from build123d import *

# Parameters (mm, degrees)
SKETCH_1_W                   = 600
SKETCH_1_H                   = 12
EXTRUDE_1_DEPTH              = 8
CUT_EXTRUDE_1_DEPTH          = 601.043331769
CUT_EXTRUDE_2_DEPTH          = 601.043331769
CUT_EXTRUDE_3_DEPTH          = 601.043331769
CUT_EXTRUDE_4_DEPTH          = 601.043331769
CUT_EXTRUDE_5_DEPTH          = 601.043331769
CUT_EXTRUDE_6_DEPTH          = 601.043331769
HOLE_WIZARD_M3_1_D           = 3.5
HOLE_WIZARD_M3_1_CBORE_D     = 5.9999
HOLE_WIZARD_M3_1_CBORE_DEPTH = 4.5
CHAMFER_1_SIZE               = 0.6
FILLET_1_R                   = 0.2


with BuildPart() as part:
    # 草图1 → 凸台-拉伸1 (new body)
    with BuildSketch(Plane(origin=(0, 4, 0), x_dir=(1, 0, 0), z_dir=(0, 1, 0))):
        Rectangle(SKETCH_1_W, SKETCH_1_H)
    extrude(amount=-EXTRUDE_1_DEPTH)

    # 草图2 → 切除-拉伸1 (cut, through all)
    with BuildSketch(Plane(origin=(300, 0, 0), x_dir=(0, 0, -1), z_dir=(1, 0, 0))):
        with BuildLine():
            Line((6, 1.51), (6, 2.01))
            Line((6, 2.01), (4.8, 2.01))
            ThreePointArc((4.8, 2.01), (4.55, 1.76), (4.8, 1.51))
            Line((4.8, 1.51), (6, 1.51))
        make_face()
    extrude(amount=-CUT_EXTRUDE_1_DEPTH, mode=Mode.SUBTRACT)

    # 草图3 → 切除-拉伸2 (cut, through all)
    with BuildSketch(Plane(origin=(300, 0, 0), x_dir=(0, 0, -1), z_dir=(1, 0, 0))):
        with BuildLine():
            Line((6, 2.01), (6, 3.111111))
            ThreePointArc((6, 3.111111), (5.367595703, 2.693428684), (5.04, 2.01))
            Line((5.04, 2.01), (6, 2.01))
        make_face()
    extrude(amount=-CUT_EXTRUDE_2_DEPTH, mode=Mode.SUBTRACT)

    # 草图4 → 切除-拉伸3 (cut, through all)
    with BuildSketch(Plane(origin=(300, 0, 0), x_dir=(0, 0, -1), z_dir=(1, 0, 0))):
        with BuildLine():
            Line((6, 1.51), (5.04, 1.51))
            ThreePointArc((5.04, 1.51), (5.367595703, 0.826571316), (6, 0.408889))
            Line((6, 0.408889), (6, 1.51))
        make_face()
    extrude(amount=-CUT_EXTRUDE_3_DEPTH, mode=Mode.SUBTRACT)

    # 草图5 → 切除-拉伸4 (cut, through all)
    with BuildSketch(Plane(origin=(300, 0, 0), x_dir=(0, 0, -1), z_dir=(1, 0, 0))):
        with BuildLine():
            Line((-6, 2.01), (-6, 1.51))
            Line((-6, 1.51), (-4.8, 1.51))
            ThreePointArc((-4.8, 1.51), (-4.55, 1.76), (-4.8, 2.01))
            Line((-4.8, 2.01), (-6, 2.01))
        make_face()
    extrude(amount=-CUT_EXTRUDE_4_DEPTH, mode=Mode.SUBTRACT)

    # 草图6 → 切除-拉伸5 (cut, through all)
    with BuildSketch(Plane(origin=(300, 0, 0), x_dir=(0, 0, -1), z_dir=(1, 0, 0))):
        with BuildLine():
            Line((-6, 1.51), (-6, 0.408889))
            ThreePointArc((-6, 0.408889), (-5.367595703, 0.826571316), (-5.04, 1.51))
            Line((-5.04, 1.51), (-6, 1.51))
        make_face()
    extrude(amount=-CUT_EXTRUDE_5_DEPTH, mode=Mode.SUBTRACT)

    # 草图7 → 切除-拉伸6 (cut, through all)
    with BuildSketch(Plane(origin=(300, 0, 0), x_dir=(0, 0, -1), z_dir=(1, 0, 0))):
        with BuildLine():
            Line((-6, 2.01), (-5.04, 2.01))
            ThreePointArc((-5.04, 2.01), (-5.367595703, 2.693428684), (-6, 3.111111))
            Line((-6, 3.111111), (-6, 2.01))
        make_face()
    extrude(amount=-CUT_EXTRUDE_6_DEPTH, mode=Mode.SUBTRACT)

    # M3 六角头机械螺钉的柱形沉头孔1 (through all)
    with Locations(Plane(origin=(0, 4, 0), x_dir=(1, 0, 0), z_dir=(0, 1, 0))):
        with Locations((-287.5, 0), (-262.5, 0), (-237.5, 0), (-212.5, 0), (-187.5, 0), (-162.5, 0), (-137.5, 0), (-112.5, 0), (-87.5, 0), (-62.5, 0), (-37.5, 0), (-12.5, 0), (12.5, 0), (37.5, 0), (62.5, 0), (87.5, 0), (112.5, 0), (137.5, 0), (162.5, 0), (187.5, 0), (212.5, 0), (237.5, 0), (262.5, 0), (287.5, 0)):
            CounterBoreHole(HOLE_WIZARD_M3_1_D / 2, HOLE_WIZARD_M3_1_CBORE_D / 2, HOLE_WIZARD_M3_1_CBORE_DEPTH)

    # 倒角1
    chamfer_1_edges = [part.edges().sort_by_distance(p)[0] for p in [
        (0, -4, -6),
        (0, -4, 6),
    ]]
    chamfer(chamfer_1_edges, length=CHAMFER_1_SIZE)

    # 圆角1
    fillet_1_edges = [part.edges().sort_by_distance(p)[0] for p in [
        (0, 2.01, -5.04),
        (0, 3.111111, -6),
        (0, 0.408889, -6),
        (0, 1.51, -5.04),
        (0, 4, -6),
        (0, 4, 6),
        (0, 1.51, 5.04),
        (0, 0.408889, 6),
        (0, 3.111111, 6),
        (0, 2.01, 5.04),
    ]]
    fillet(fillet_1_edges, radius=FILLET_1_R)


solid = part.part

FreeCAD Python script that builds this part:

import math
import FreeCAD as App
import Part
import Sketcher
from FreeCAD import Vector


def edges_at(feature, points):
    """Names of the edges that pass closest to the given points."""
    edges = feature.Shape.Edges
    near = lambda p: min(range(len(edges)), key=lambda i: edges[i].distToShape(Part.Vertex(*p))[0])
    return sorted({f"Edge{near(p) + 1}" for p in points})

doc = App.newDocument("Part")
params = doc.addObject("Spreadsheet::Sheet", "Params")
for row, (alias, value) in enumerate([
    ("sketch1_width", "600 mm"),
    ("sketch1_height", "12 mm"),
    ("pad1_length", "8 mm"),
    ("sketch2_radius", "0.25 mm"),
    ("sketch2_height", "1.2 mm"),
    ("sketch3_height", "0.96 mm"),
    ("sketch4_height", "0.96 mm"),
    ("sketch5_radius", "0.25 mm"),
    ("sketch5_height", "1.2 mm"),
    ("sketch6_height", "0.96 mm"),
    ("sketch7_height", "0.96 mm"),
    ("sketch8_diameter", "3.5 mm"),
    ("hole_diameter", "3.5 mm"),
    ("hole_cbore_diameter", "5.9999 mm"),
    ("hole_cbore_depth", "4.5 mm"),
    ("chamfer_size", "0.6 mm"),
    ("fillet_radius", "0.2 mm"),
], start=1):
    params.set(f"A{row}", alias)
    params.set(f"B{row}", "=" + value)
    params.setAlias(f"B{row}", alias)

body = doc.addObject("PartDesign::Body", "Body")

# Sketch on XZ plane
sketch1 = body.newObject("Sketcher::SketchObject", "Sketch")
sketch1.AttachmentSupport = (doc.getObject("XZ_Plane"), [""])
sketch1.MapMode = "FlatFace"
sketch1.AttachmentOffset = App.Placement(Vector(0, 0, -4), App.Rotation())
sketch1.addGeometry([
    Part.LineSegment(Vector(-300, -6, 0), Vector(-300, 6, 0)),
    Part.LineSegment(Vector(-300, 6, 0), Vector(300, 6, 0)),
    Part.LineSegment(Vector(300, 6, 0), Vector(300, -6, 0)),
    Part.LineSegment(Vector(300, -6, 0), Vector(-300, -6, 0)),
], False)
sketch1.addConstraint([
    Sketcher.Constraint("Coincident", 0, 2, 1, 1),
    Sketcher.Constraint("Coincident", 1, 2, 2, 1),
    Sketcher.Constraint("Coincident", 2, 2, 3, 1),
    Sketcher.Constraint("Coincident", 3, 2, 0, 1),
    Sketcher.Constraint("Vertical", 0),
    Sketcher.Constraint("Horizontal", 1),
    Sketcher.Constraint("Vertical", 2),
    Sketcher.Constraint("Horizontal", 3),
    Sketcher.Constraint("Symmetric", 0, 2, 2, 2, -1, 1),
    Sketcher.Constraint("DistanceX", 1, 1, 1, 2, 600.0),
    Sketcher.Constraint("DistanceY", 0, 1, 0, 2, 12.0),
])
sketch1.setExpression("Constraints[9]", "Params.sketch1_width")
sketch1.setExpression("Constraints[10]", "Params.sketch1_height")
pad1 = body.newObject("PartDesign::Pad", "Pad")
pad1.Profile = sketch1
pad1.setExpression("Length", "Params.pad1_length")

# Sketch on YZ plane
sketch2 = body.newObject("Sketcher::SketchObject", "Sketch001")
sketch2.AttachmentSupport = (doc.getObject("YZ_Plane"), [""])
sketch2.MapMode = "FlatFace"
sketch2.AttachmentOffset = App.Placement(Vector(0, 0, 300), App.Rotation())
sketch2.addGeometry([
    Part.LineSegment(Vector(1.51, -6, 0), Vector(2.01, -6, 0)),
    Part.LineSegment(Vector(2.01, -6, 0), Vector(2.01, -4.8, 0)),
    Part.ArcOfCircle(Part.Circle(Vector(1.76, -4.8, 0), Vector(0, 0, 1), 0.25), math.radians(0), math.radians(180)),
    Part.LineSegment(Vector(1.51, -4.8, 0), Vector(1.51, -6, 0)),
], False)
sketch2.addConstraint([
    Sketcher.Constraint("Coincident", 0, 2, 1, 1),
    Sketcher.Constraint("Tangent", 1, 2, 2, 1),
    Sketcher.Constraint("Tangent", 2, 2, 3, 1),
    Sketcher.Constraint("Coincident", 3, 2, 0, 1),
    Sketcher.Constraint("Horizontal", 0),
    Sketcher.Constraint("Vertical", 1),
    Sketcher.Constraint("Vertical", 3),
    Sketcher.Constraint("Radius", 2, 0.25),
    Sketcher.Constraint("DistanceY", 1, 1, 1, 2, 1.2),
    Sketcher.Constraint("DistanceY", 0, 2, -1, 1, 6.0),
    Sketcher.Constraint("DistanceX", -1, 1, 2, 3, 1.76),
])
sketch2.setExpression("Constraints[7]", "Params.sketch2_radius")
sketch2.setExpression("Constraints[8]", "Params.sketch2_height")
pocket1 = body.newObject("PartDesign::Pocket", "Pocket")
pocket1.Profile = sketch2
pocket1.Type = "ThroughAll"

# Sketch on YZ plane
sketch3 = body.newObject("Sketcher::SketchObject", "Sketch002")
sketch3.AttachmentSupport = (doc.getObject("YZ_Plane"), [""])
sketch3.MapMode = "FlatFace"
sketch3.AttachmentOffset = App.Placement(Vector(0, 0, 300), App.Rotation())
sketch3.addGeometry([
    Part.LineSegment(Vector(2.01, -6, 0), Vector(3.111111, -6, 0)),
    Part.ArcOfCircle(Part.Circle(Vector(1.76, -6.43823, 0), Vector(0, 0, 1), 1.420404), math.radians(17.970348), math.radians(79.862775)),
    Part.LineSegment(Vector(2.01, -5.04, 0), Vector(2.01, -6, 0)),
], False)
sketch3.addConstraint([
    Sketcher.Constraint("Coincident", 0, 2, 1, 1),
    Sketcher.Constraint("Coincident", 1, 2, 2, 1),
    Sketcher.Constraint("Coincident", 2, 2, 0, 1),
    Sketcher.Constraint("Horizontal", 0),
    Sketcher.Constraint("Vertical", 2),
    Sketcher.Constraint("DistanceY", 0, 2, -1, 1, 6.0),
    Sketcher.Constraint("DistanceY", 2, 2, 2, 1, 0.96),
    Sketcher.Constraint("DistanceX", -1, 1, 1, 3, 1.76),
    Sketcher.Constraint("DistanceX", -1, 1, 1, 2, 2.01),
    Sketcher.Constraint("Radius", 1, 1.420404),
])
sketch3.setExpression("Constraints[6]", "Params.sketch3_height")
pocket2 = body.newObject("PartDesign::Pocket", "Pocket001")
pocket2.Profile = sketch3
pocket2.Type = "ThroughAll"

# Sketch on YZ plane
sketch4 = body.newObject("Sketcher::SketchObject", "Sketch003")
sketch4.AttachmentSupport = (doc.getObject("YZ_Plane"), [""])
sketch4.MapMode = "FlatFace"
sketch4.AttachmentOffset = App.Placement(Vector(0, 0, 300), App.Rotation())
sketch4.addGeometry([
    Part.LineSegment(Vector(1.51, -6, 0), Vector(1.51, -5.04, 0)),
    Part.ArcOfCircle(Part.Circle(Vector(1.76, -6.43823, 0), Vector(0, 0, 1), 1.420404), math.radians(100.137225), math.radians(162.029652)),
    Part.LineSegment(Vector(0.408889, -6, 0), Vector(1.51, -6, 0)),
], False)
sketch4.addConstraint([
    Sketcher.Constraint("Coincident", 0, 2, 1, 1),
    Sketcher.Constraint("Coincident", 1, 2, 2, 1),
    Sketcher.Constraint("Coincident", 2, 2, 0, 1),
    Sketcher.Constraint("Vertical", 0),
    Sketcher.Constraint("Horizontal", 2),
    Sketcher.Constraint("DistanceY", 1, 2, -1, 1, 6.0),
    Sketcher.Constraint("DistanceY", 0, 1, 0, 2, 0.96),
    Sketcher.Constraint("DistanceX", -1, 1, 1, 3, 1.76),
    Sketcher.Constraint("DistanceX", -1, 1, 0, 2, 1.51),
    Sketcher.Constraint("Radius", 1, 1.420404),
])
sketch4.setExpression("Constraints[6]", "Params.sketch4_height")
pocket3 = body.newObject("PartDesign::Pocket", "Pocket002")
pocket3.Profile = sketch4
pocket3.Type = "ThroughAll"

# Sketch on YZ plane
sketch5 = body.newObject("Sketcher::SketchObject", "Sketch004")
sketch5.AttachmentSupport = (doc.getObject("YZ_Plane"), [""])
sketch5.MapMode = "FlatFace"
sketch5.AttachmentOffset = App.Placement(Vector(0, 0, 300), App.Rotation())
sketch5.addGeometry([
    Part.LineSegment(Vector(2.01, 6, 0), Vector(1.51, 6, 0)),
    Part.LineSegment(Vector(1.51, 6, 0), Vector(1.51, 4.8, 0)),
    Part.ArcOfCircle(Part.Circle(Vector(1.76, 4.8, 0), Vector(0, 0, 1), 0.25), math.radians(180), math.radians(360)),
    Part.LineSegment(Vector(2.01, 4.8, 0), Vector(2.01, 6, 0)),
], False)
sketch5.addConstraint([
    Sketcher.Constraint("Coincident", 0, 2, 1, 1),
    Sketcher.Constraint("Tangent", 1, 2, 2, 1),
    Sketcher.Constraint("Tangent", 2, 2, 3, 1),
    Sketcher.Constraint("Coincident", 3, 2, 0, 1),
    Sketcher.Constraint("Horizontal", 0),
    Sketcher.Constraint("Vertical", 1),
    Sketcher.Constraint("Vertical", 3),
    Sketcher.Constraint("Radius", 2, 0.25),
    Sketcher.Constraint("DistanceY", 1, 2, 1, 1, 1.2),
    Sketcher.Constraint("DistanceY", -1, 1, 0, 2, 6.0),
    Sketcher.Constraint("DistanceX", -1, 1, 2, 3, 1.76),
])
sketch5.setExpression("Constraints[7]", "Params.sketch5_radius")
sketch5.setExpression("Constraints[8]", "Params.sketch5_height")
pocket4 = body.newObject("PartDesign::Pocket", "Pocket003")
pocket4.Profile = sketch5
pocket4.Type = "ThroughAll"

# Sketch on YZ plane
sketch6 = body.newObject("Sketcher::SketchObject", "Sketch005")
sketch6.AttachmentSupport = (doc.getObject("YZ_Plane"), [""])
sketch6.MapMode = "FlatFace"
sketch6.AttachmentOffset = App.Placement(Vector(0, 0, 300), App.Rotation())
sketch6.addGeometry([
    Part.LineSegment(Vector(1.51, 6, 0), Vector(0.408889, 6, 0)),
    Part.ArcOfCircle(Part.Circle(Vector(1.76, 6.43823, 0), Vector(0, 0, 1), 1.420404), math.radians(-162.029652), math.radians(-100.137225)),
    Part.LineSegment(Vector(1.51, 5.04, 0), Vector(1.51, 6, 0)),
], False)
sketch6.addConstraint([
    Sketcher.Constraint("Coincident", 0, 2, 1, 1),
    Sketcher.Constraint("Coincident", 1, 2, 2, 1),
    Sketcher.Constraint("Coincident", 2, 2, 0, 1),
    Sketcher.Constraint("Horizontal", 0),
    Sketcher.Constraint("Vertical", 2),
    Sketcher.Constraint("DistanceY", -1, 1, 0, 2, 6.0),
    Sketcher.Constraint("DistanceY", 2, 1, 2, 2, 0.96),
    Sketcher.Constraint("DistanceX", -1, 1, 1, 3, 1.76),
    Sketcher.Constraint("DistanceX", -1, 1, 1, 2, 1.51),
    Sketcher.Constraint("Radius", 1, 1.420404),
])
sketch6.setExpression("Constraints[6]", "Params.sketch6_height")
pocket5 = body.newObject("PartDesign::Pocket", "Pocket004")
pocket5.Profile = sketch6
pocket5.Type = "ThroughAll"

# Sketch on YZ plane
sketch7 = body.newObject("Sketcher::SketchObject", "Sketch006")
sketch7.AttachmentSupport = (doc.getObject("YZ_Plane"), [""])
sketch7.MapMode = "FlatFace"
sketch7.AttachmentOffset = App.Placement(Vector(0, 0, 300), App.Rotation())
sketch7.addGeometry([
    Part.LineSegment(Vector(2.01, 6, 0), Vector(2.01, 5.04, 0)),
    Part.ArcOfCircle(Part.Circle(Vector(1.76, 6.43823, 0), Vector(0, 0, 1), 1.420404), math.radians(-79.862775), math.radians(-17.970348)),
    Part.LineSegment(Vector(3.111111, 6, 0), Vector(2.01, 6, 0)),
], False)
sketch7.addConstraint([
    Sketcher.Constraint("Coincident", 0, 2, 1, 1),
    Sketcher.Constraint("Coincident", 1, 2, 2, 1),
    Sketcher.Constraint("Coincident", 2, 2, 0, 1),
    Sketcher.Constraint("Vertical", 0),
    Sketcher.Constraint("Horizontal", 2),
    Sketcher.Constraint("DistanceY", -1, 1, 1, 2, 6.0),
    Sketcher.Constraint("DistanceY", 0, 2, 0, 1, 0.96),
    Sketcher.Constraint("DistanceX", -1, 1, 1, 3, 1.76),
    Sketcher.Constraint("DistanceX", -1, 1, 0, 2, 2.01),
    Sketcher.Constraint("Radius", 1, 1.420404),
])
sketch7.setExpression("Constraints[6]", "Params.sketch7_height")
pocket6 = body.newObject("PartDesign::Pocket", "Pocket005")
pocket6.Profile = sketch7
pocket6.Type = "ThroughAll"

# Sketch on XZ plane
sketch8 = body.newObject("Sketcher::SketchObject", "Sketch007")
sketch8.AttachmentSupport = (doc.getObject("XZ_Plane"), [""])
sketch8.MapMode = "FlatFace"
sketch8.AttachmentOffset = App.Placement(Vector(0, 0, -4), App.Rotation())
sketch8.addGeometry([
    Part.Circle(Vector(-287.5, 0, 0), Vector(0, 0, 1), 1.75),  # 0
    Part.Circle(Vector(-262.5, 0, 0), Vector(0, 0, 1), 1.75),  # 1
    Part.Circle(Vector(-237.5, 0, 0), Vector(0, 0, 1), 1.75),  # 2
    Part.Circle(Vector(-212.5, 0, 0), Vector(0, 0, 1), 1.75),  # 3
    Part.Circle(Vector(-187.5, 0, 0), Vector(0, 0, 1), 1.75),  # 4
    Part.Circle(Vector(-162.5, 0, 0), Vector(0, 0, 1), 1.75),  # 5
    Part.Circle(Vector(-137.5, 0, 0), Vector(0, 0, 1), 1.75),  # 6
    Part.Circle(Vector(-112.5, 0, 0), Vector(0, 0, 1), 1.75),  # 7
    Part.Circle(Vector(-87.5, 0, 0), Vector(0, 0, 1), 1.75),  # 8
    Part.Circle(Vector(-62.5, 0, 0), Vector(0, 0, 1), 1.75),  # 9
    Part.Circle(Vector(-37.5, 0, 0), Vector(0, 0, 1), 1.75),  # 10
    Part.Circle(Vector(-12.5, 0, 0), Vector(0, 0, 1), 1.75),  # 11
    Part.Circle(Vector(12.5, 0, 0), Vector(0, 0, 1), 1.75),  # 12
    Part.Circle(Vector(37.5, 0, 0), Vector(0, 0, 1), 1.75),  # 13
    Part.Circle(Vector(62.5, 0, 0), Vector(0, 0, 1), 1.75),  # 14
    Part.Circle(Vector(87.5, 0, 0), Vector(0, 0, 1), 1.75),  # 15
    Part.Circle(Vector(112.5, 0, 0), Vector(0, 0, 1), 1.75),  # 16
    Part.Circle(Vector(137.5, 0, 0), Vector(0, 0, 1), 1.75),  # 17
    Part.Circle(Vector(162.5, 0, 0), Vector(0, 0, 1), 1.75),  # 18
    Part.Circle(Vector(187.5, 0, 0), Vector(0, 0, 1), 1.75),  # 19
    Part.Circle(Vector(212.5, 0, 0), Vector(0, 0, 1), 1.75),  # 20
    Part.Circle(Vector(237.5, 0, 0), Vector(0, 0, 1), 1.75),  # 21
    Part.Circle(Vector(262.5, 0, 0), Vector(0, 0, 1), 1.75),  # 22
    Part.Circle(Vector(287.5, 0, 0), Vector(0, 0, 1), 1.75),  # 23
], False)
sketch8.addConstraint([
    Sketcher.Constraint("Equal", 0, 1),
    Sketcher.Constraint("Equal", 1, 2),
    Sketcher.Constraint("Equal", 2, 3),
    Sketcher.Constraint("Equal", 3, 4),
    Sketcher.Constraint("Equal", 4, 5),
    Sketcher.Constraint("Equal", 5, 6),
    Sketcher.Constraint("Equal", 6, 7),
    Sketcher.Constraint("Equal", 7, 8),
    Sketcher.Constraint("Equal", 8, 9),
    Sketcher.Constraint("Equal", 9, 10),
    Sketcher.Constraint("Equal", 10, 11),
    Sketcher.Constraint("Equal", 11, 12),
    Sketcher.Constraint("Equal", 12, 13),
    Sketcher.Constraint("Equal", 13, 14),
    Sketcher.Constraint("Equal", 14, 15),
    Sketcher.Constraint("Equal", 15, 16),
    Sketcher.Constraint("Equal", 16, 17),
    Sketcher.Constraint("Equal", 17, 18),
    Sketcher.Constraint("Equal", 18, 19),
    Sketcher.Constraint("Equal", 19, 20),
    Sketcher.Constraint("Equal", 20, 21),
    Sketcher.Constraint("Equal", 21, 22),
    Sketcher.Constraint("Equal", 22, 23),
    Sketcher.Constraint("Symmetric", 11, 3, 12, 3, -1, 1),
    Sketcher.Constraint("Symmetric", 10, 3, 13, 3, -1, 1),
    Sketcher.Constraint("Symmetric", 9, 3, 14, 3, -1, 1),
    Sketcher.Constraint("Symmetric", 8, 3, 15, 3, -1, 1),
    Sketcher.Constraint("Symmetric", 7, 3, 16, 3, -1, 1),
    Sketcher.Constraint("Symmetric", 6, 3, 17, 3, -1, 1),
    Sketcher.Constraint("Symmetric", 5, 3, 18, 3, -1, 1),
    Sketcher.Constraint("Symmetric", 4, 3, 19, 3, -1, 1),
    Sketcher.Constraint("Symmetric", 3, 3, 20, 3, -1, 1),
    Sketcher.Constraint("Symmetric", 2, 3, 21, 3, -1, 1),
    Sketcher.Constraint("Symmetric", 1, 3, 22, 3, -1, 1),
    Sketcher.Constraint("Symmetric", 0, 3, 23, 3, -1, 1),
    Sketcher.Constraint("PointOnObject", 0, 3, -1),
    Sketcher.Constraint("PointOnObject", 1, 3, -1),
    Sketcher.Constraint("PointOnObject", 2, 3, -1),
    Sketcher.Constraint("PointOnObject", 3, 3, -1),
    Sketcher.Constraint("PointOnObject", 4, 3, -1),
    Sketcher.Constraint("PointOnObject", 5, 3, -1),
    Sketcher.Constraint("PointOnObject", 6, 3, -1),
    Sketcher.Constraint("PointOnObject", 7, 3, -1),
    Sketcher.Constraint("PointOnObject", 8, 3, -1),
    Sketcher.Constraint("PointOnObject", 9, 3, -1),
    Sketcher.Constraint("PointOnObject", 10, 3, -1),
    Sketcher.Constraint("PointOnObject", 11, 3, -1),
    Sketcher.Constraint("Diameter", 0, 3.5),
    Sketcher.Constraint("DistanceX", 0, 3, 1, 3, 25.0),
    Sketcher.Constraint("DistanceX", 1, 3, 2, 3, 25.0),
    Sketcher.Constraint("DistanceX", 2, 3, 3, 3, 25.0),
    Sketcher.Constraint("DistanceX", 3, 3, 4, 3, 25.0),
    Sketcher.Constraint("DistanceX", 4, 3, 5, 3, 25.0),
    Sketcher.Constraint("DistanceX", 5, 3, 6, 3, 25.0),
    Sketcher.Constraint("DistanceX", 6, 3, 7, 3, 25.0),
    Sketcher.Constraint("DistanceX", 7, 3, 8, 3, 25.0),
    Sketcher.Constraint("DistanceX", 8, 3, 9, 3, 25.0),
    Sketcher.Constraint("DistanceX", 9, 3, 10, 3, 25.0),
    Sketcher.Constraint("DistanceX", 10, 3, 11, 3, 25.0),
    Sketcher.Constraint("DistanceX", 11, 3, 12, 3, 25.0),
])
sketch8.setExpression("Constraints[47]", "Params.sketch8_diameter")
doc.recompute()
hole = body.newObject("PartDesign::Hole", "Hole")
hole.Profile = sketch8
hole.ThreadType = "None"
hole.setExpression("Diameter", "Params.hole_diameter")
hole.DepthType = "ThroughAll"
hole.HoleCutType = "Counterbore"
hole.setExpression("HoleCutDiameter", "Params.hole_cbore_diameter")
hole.setExpression("HoleCutDepth", "Params.hole_cbore_depth")
hole.Reversed = True
doc.recompute()

chamfer = body.newObject("PartDesign::Chamfer", "Chamfer")
chamfer.Base = (hole, edges_at(hole, [(0, -4, -6), (0, -4, 6)]))
chamfer.setExpression("Size", "Params.chamfer_size")
doc.recompute()

fillet = body.newObject("PartDesign::Fillet", "Fillet")
fillet.Base = (chamfer, edges_at(chamfer, [
    (0, 2.01, -5.04),
    (0, 3.111, -6),
    (0, 0.409, -6),
    (0, 1.51, -5.04),
    (0, 4, -6),
    (0, 4, 6),
    (0, 1.51, 5.04),
    (0, 0.409, 6),
    (0, 3.111, 6),
    (0, 2.01, 5.04),
]))
fillet.setExpression("Radius", "Params.fillet_radius")

doc.recompute()
